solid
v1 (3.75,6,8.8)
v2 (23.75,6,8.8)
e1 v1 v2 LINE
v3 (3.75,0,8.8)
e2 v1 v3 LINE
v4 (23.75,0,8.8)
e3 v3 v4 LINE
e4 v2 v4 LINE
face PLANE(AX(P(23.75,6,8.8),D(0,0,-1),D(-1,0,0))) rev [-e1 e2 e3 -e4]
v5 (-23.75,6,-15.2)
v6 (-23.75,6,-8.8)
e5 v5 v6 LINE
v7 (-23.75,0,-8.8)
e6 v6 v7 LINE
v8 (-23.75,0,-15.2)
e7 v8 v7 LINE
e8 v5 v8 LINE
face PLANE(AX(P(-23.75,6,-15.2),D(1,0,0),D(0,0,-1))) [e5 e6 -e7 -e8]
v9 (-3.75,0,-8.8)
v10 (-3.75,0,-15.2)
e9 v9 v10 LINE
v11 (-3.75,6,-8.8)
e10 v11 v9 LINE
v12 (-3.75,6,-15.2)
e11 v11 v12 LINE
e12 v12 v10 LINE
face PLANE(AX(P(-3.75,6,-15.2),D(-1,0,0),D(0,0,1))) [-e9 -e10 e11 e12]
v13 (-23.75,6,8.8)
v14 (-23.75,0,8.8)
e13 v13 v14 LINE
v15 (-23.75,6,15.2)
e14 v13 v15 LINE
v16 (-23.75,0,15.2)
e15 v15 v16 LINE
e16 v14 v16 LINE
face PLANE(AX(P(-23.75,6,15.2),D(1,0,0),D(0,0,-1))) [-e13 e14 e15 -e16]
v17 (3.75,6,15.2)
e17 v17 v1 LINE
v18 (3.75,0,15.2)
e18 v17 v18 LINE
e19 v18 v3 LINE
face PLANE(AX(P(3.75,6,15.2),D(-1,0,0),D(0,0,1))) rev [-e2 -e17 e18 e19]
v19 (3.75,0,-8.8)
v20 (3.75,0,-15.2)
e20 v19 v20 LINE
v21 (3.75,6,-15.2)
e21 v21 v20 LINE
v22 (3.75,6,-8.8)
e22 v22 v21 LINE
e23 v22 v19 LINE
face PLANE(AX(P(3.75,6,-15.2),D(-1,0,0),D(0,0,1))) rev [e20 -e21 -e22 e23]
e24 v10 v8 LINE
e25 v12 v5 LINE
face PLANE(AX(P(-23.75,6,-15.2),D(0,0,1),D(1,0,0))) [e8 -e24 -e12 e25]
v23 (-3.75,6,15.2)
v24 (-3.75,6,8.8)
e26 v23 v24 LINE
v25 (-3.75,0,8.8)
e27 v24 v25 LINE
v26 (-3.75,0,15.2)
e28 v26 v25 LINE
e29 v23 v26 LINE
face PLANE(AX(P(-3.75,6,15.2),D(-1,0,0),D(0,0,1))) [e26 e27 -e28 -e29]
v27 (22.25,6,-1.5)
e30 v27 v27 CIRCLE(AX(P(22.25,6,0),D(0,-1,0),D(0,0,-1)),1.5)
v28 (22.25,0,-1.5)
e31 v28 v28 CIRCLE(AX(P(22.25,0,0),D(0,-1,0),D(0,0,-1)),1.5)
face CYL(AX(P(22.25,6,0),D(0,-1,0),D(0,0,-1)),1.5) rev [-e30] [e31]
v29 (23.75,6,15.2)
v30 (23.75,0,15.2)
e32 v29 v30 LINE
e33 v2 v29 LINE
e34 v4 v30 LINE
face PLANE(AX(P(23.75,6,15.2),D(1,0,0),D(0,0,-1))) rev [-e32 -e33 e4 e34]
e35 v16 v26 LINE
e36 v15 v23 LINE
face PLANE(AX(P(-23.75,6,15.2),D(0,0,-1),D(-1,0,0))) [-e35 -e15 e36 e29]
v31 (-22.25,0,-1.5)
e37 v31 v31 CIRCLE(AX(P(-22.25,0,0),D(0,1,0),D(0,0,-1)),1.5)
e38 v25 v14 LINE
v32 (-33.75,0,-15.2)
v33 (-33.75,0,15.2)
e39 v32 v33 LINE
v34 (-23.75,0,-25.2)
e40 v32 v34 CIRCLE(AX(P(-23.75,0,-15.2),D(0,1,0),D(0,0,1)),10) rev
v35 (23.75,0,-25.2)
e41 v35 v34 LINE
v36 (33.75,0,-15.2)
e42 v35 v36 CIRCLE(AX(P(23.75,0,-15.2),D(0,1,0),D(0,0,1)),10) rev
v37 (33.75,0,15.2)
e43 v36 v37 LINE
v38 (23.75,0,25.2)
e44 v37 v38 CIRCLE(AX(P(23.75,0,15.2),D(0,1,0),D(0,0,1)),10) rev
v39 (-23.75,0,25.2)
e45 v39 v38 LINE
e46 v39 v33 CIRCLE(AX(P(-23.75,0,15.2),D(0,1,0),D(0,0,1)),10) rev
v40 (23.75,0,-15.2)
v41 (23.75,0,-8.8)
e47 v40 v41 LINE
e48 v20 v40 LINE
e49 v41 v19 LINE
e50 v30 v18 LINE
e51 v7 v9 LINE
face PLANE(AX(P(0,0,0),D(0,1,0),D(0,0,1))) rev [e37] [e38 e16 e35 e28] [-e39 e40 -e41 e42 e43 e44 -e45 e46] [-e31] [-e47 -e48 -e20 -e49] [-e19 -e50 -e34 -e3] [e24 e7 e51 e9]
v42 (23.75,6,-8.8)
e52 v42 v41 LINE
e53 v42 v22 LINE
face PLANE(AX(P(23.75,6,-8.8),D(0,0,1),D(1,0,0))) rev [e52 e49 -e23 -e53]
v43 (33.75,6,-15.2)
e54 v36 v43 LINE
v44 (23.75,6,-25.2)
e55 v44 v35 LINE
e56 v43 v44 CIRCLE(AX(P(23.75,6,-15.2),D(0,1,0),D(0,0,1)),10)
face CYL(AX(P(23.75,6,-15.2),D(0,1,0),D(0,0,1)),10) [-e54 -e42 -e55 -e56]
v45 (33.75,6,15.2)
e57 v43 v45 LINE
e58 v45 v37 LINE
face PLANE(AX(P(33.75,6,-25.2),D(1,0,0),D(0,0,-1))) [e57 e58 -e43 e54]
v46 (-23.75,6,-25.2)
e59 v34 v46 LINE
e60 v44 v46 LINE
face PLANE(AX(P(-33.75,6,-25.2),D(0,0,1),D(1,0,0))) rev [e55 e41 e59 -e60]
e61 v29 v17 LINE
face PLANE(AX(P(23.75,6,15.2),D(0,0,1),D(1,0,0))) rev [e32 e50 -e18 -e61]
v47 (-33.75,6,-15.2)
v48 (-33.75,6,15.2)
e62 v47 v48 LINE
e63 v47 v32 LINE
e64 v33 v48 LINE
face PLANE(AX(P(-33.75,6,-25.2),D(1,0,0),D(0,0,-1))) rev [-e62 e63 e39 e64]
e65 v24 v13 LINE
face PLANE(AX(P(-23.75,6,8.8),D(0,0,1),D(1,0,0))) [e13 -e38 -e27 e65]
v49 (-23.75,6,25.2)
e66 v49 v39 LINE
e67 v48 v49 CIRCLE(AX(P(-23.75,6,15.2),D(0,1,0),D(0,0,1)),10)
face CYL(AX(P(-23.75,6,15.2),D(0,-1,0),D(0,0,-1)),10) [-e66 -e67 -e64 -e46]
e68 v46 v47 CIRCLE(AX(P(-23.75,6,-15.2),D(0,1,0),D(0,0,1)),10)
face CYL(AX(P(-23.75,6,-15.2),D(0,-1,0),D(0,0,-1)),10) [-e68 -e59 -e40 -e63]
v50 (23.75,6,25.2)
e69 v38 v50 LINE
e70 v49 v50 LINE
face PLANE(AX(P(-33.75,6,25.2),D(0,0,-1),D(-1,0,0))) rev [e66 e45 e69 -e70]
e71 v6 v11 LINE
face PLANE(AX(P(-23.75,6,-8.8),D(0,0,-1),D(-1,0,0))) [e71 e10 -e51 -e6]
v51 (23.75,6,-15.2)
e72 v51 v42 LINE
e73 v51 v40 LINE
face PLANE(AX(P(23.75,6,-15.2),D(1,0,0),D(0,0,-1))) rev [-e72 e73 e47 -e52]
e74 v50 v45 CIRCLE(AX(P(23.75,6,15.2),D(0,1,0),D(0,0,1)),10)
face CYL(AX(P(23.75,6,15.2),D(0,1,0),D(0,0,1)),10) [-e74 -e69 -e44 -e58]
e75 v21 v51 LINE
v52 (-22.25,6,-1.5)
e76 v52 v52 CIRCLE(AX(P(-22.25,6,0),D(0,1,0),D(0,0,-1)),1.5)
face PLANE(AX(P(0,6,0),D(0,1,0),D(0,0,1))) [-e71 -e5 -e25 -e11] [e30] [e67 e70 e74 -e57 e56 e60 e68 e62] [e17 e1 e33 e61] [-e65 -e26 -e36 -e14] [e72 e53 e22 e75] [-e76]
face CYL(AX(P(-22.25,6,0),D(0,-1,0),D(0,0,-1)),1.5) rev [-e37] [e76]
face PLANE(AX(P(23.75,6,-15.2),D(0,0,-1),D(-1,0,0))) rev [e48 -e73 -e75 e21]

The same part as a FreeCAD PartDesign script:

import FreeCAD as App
import Part
import Sketcher
from FreeCAD import Vector
Q = App.Units.Quantity


def edges_at(feature, points):
    """Names of the edges that pass closest to the given points."""
    edges = feature.Shape.Edges
    near = lambda p: min(range(len(edges)), key=lambda i: edges[i].distToShape(Part.Vertex(*p))[0])
    return sorted({f"Edge{near(p) + 1}" for p in points})

doc = App.newDocument("Part")
body = doc.addObject("PartDesign::Body", "Body")

sketch1 = body.newObject("Sketcher::SketchObject", "Sketch")
sketch1.AttachmentSupport = (doc.getObject("XZ_Plane"), [""])
sketch1.MapMode = "FlatFace"
sketch1.addGeometry([
    Part.LineSegment(Vector(-33.75, -25.2, 0), Vector(-33.75, 25.2, 0)),
    Part.LineSegment(Vector(-33.75, 25.2, 0), Vector(0, 25.2, 0)),
    Part.LineSegment(Vector(0, 25.2, 0), Vector(0, -25.2, 0)),
    Part.LineSegment(Vector(0, -25.2, 0), Vector(-33.75, -25.2, 0)),
    Part.Circle(Vector(-22.25, 0, 0), Vector(0, 0, 1), 1.5),
    Part.LineSegment(Vector(-3.75, 15.2, 0), Vector(-23.75, 15.2, 0)),
    Part.LineSegment(Vector(-23.75, 15.2, 0), Vector(-23.75, 8.8, 0)),
    Part.LineSegment(Vector(-23.75, 8.8, 0), Vector(-3.75, 8.8, 0)),
    Part.LineSegment(Vector(-3.75, 8.8, 0), Vector(-3.75, 15.2, 0)),
    Part.LineSegment(Vector(-3.75, -8.8, 0), Vector(-23.75, -8.8, 0)),
    Part.LineSegment(Vector(-23.75, -8.8, 0), Vector(-23.75, -15.2, 0)),
    Part.LineSegment(Vector(-23.75, -15.2, 0), Vector(-3.75, -15.2, 0)),
    Part.LineSegment(Vector(-3.75, -15.2, 0), Vector(-3.75, -8.8, 0)),
], False)
sketch1.addConstraint([
    Sketcher.Constraint("Coincident", 0, 2, 1, 1),
    Sketcher.Constraint("Coincident", 1, 2, 2, 1),
    Sketcher.Constraint("Coincident", 2, 2, 3, 1),
    Sketcher.Constraint("Coincident", 3, 2, 0, 1),
    Sketcher.Constraint("Coincident", 5, 2, 6, 1),
    Sketcher.Constraint("Coincident", 6, 2, 7, 1),
    Sketcher.Constraint("Coincident", 7, 2, 8, 1),
    Sketcher.Constraint("Coincident", 8, 2, 5, 1),
    Sketcher.Constraint("Coincident", 9, 2, 10, 1),
    Sketcher.Constraint("Coincident", 10, 2, 11, 1),
    Sketcher.Constraint("Coincident", 11, 2, 12, 1),
    Sketcher.Constraint("Coincident", 12, 2, 9, 1),
    Sketcher.Constraint("Vertical", 0),
    Sketcher.Constraint("Horizontal", 1),
    Sketcher.Constraint("Vertical", 2),
    Sketcher.Constraint("Horizontal", 3),
    Sketcher.Constraint("Horizontal", 5),
    Sketcher.Constraint("Vertical", 6),
    Sketcher.Constraint("Horizontal", 7),
    Sketcher.Constraint("Vertical", 8),
    Sketcher.Constraint("Horizontal", 9),
    Sketcher.Constraint("Vertical", 10),
    Sketcher.Constraint("Horizontal", 11),
    Sketcher.Constraint("Vertical", 12),
    Sketcher.Constraint("Symmetric", 1, 2, 2, 2, -1, 1),
    Sketcher.Constraint("Symmetric", 6, 2, 9, 2, -1),
    Sketcher.Constraint("Symmetric", 8, 2, 11, 2, -1),
    Sketcher.Constraint("PointOnObject", 4, 3, -1),
    Sketcher.Constraint("Diameter", 4, Q("3 mm")),
    Sketcher.Constraint("DistanceX", 5, 2, 5, 1, Q("20 mm")),
    Sketcher.Constraint("DistanceY", 0, 1, 0, 2, Q("50.4 mm")),
    Sketcher.Constraint("DistanceY", 6, 2, 6, 1, Q("6.4 mm")),
    Sketcher.Constraint("DistanceX", 0, 2, 5, 2, Q("10 mm")),
    Sketcher.Constraint("DistanceY", 5, 2, 0, 2, Q("10 mm")),
    Sketcher.Constraint("DistanceX", 1, 1, 1, 2, Q("33.75 mm")),
    Sketcher.Constraint("DistanceX", 0, 2, 4, 3, Q("11.5 mm")),
])
pad1 = body.newObject("PartDesign::Pad", "Pad")
pad1.Profile = sketch1
pad1.Length = 6
pad1.Reversed = True
doc.recompute()

fillet = body.newObject("PartDesign::Fillet", "Fillet")
fillet.Base = (pad1, edges_at(pad1, [(-33.75, 3, -25.2), (-33.75, 3, 25.2)]))
fillet.Radius = 10
doc.recompute()

mirrored = body.newObject("PartDesign::Mirrored", "Mirrored")
mirrored.Originals = [pad1]
mirrored.MirrorPlane = (doc.getObject("YZ_Plane"), [""])
body.Tip = mirrored
doc.recompute()

fillet2 = body.newObject("PartDesign::Fillet", "Fillet001")
fillet2.Base = (mirrored, edges_at(mirrored, [(33.75, 3, -25.2), (33.75, 3, 25.2)]))
fillet2.Radius = 10

doc.recompute()
